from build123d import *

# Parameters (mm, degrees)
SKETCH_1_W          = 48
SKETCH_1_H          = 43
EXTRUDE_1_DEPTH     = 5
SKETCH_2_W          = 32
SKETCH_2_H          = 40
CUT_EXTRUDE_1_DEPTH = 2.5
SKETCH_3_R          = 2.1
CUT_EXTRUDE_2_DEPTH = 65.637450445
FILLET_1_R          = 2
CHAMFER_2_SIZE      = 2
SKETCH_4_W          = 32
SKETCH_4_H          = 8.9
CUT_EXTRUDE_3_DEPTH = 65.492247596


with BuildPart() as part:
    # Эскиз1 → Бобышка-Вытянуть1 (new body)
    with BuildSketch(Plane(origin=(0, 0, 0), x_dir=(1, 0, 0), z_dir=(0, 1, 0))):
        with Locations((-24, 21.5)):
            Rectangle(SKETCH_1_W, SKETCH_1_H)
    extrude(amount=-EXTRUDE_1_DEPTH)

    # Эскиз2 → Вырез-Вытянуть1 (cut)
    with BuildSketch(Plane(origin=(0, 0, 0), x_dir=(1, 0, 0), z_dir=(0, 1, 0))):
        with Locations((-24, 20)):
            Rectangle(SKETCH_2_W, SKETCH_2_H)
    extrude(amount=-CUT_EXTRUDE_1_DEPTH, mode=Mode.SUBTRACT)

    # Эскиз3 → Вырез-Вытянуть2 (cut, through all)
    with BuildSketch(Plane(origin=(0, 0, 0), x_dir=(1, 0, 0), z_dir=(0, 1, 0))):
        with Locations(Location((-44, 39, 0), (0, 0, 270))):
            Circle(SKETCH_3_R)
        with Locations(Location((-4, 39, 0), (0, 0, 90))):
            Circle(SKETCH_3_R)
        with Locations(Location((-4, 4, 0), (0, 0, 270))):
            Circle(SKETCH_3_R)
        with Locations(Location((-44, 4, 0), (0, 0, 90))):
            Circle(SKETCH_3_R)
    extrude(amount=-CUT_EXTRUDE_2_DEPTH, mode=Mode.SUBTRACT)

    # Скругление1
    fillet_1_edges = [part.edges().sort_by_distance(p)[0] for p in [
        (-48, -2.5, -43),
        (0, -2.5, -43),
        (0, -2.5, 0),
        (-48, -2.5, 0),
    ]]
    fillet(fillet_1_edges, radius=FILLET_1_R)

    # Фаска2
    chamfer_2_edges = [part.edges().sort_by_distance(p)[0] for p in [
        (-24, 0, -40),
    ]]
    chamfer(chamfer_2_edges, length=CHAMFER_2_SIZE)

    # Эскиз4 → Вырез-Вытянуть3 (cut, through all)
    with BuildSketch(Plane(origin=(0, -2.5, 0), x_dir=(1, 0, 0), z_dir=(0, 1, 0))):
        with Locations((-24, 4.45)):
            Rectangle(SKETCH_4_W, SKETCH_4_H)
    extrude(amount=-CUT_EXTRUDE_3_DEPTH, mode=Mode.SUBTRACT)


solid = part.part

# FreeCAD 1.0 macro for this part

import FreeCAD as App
import Part
import Sketcher
from FreeCAD import Vector


def edges_at(feature, points):
    """Names of the edges that pass closest to the given points."""
    edges = feature.Shape.Edges
    near = lambda p: min(range(len(edges)), key=lambda i: edges[i].distToShape(Part.Vertex(*p))[0])
    return sorted({f"Edge{near(p) + 1}" for p in points})


def add_polygon(sketch, points):
    """Adds a closed chain of lines whose ends are joined by coincident constraints."""
    first, n = sketch.GeometryCount, len(points)
    for a, b in zip(points, points[1:] + points[:1]):
        sketch.addGeometry(Part.LineSegment(App.Vector(*a, 0), App.Vector(*b, 0)), False)
    for i in range(n):
        sketch.addConstraint(Sketcher.Constraint("Coincident", first + i, 2, first + (i + 1) % n, 1))

doc = App.newDocument("Part")
params = doc.addObject("Spreadsheet::Sheet", "Params")
for row, (alias, value) in enumerate([
    ("sketch1_width", "48 mm"),
    ("sketch1_height", "43 mm"),
    ("pad1_length", "5 mm"),
    ("sketch2_width", "32 mm"),
    ("sketch2_height", "40 mm"),
    ("pocket1_length", "2.5 mm"),
    ("sketch3_diameter", "4.2 mm"),
    ("fillet_radius", "2 mm"),
    ("chamfer_size", "2 mm"),
    ("sketch4_width", "32 mm"),
    ("sketch4_height", "8.9 mm"),
], start=1):
    params.set(f"A{row}", alias)
    params.set(f"B{row}", "=" + value)
    params.setAlias(f"B{row}", alias)

body = doc.addObject("PartDesign::Body", "Body")

# Sketch on XZ plane
sketch1 = doc.addObject("Sketcher::SketchObject", "Sketch")
body.addObject(sketch1)
sketch1.AttachmentSupport = (doc.XZ_Plane, [""])
sketch1.MapMode = "FlatFace"
add_polygon(sketch1, [(-48, -43), (-48, 0), (0, 0), (0, -43)])  # lines 0-3
sketch1.addConstraint([
    Sketcher.Constraint("Vertical", 0),
    Sketcher.Constraint("Horizontal", 1),
    Sketcher.Constraint("Vertical", 2),
    Sketcher.Constraint("Horizontal", 3),
    Sketcher.Constraint("Coincident", 1, 2, -1, 1),
    Sketcher.Constraint("DistanceX", 1, 1, 1, 2, 48.0),
    Sketcher.Constraint("DistanceY", 0, 1, 0, 2, 43.0),
])
sketch1.setExpression("Constraints[9]", "Params.sketch1_width")
sketch1.setExpression("Constraints[10]", "Params.sketch1_height")
pad1 = doc.addObject("PartDesign::Pad", "Pad")
body.addObject(pad1)
pad1.Profile = sketch1
pad1.setExpression("Length", "Params.pad1_length")

# Sketch on XZ plane
sketch2 = doc.addObject("Sketcher::SketchObject", "Sketch001")
body.addObject(sketch2)
sketch2.AttachmentSupport = (doc.XZ_Plane, [""])
sketch2.MapMode = "FlatFace"
add_polygon(sketch2, [(-40, -40), (-40, 0), (-8, 0), (-8, -40)])  # lines 0-3
sketch2.addConstraint([
    Sketcher.Constraint("Vertical", 0),
    Sketcher.Constraint("Horizontal", 1),
    Sketcher.Constraint("Vertical", 2),
    Sketcher.Constraint("Horizontal", 3),
    Sketcher.Constraint("PointOnObject", 0, 2, -1),
    Sketcher.Constraint("DistanceX", 1, 1, 1, 2, 32.0),
    Sketcher.Constraint("DistanceY", 0, 1, 0, 2, 40.0),
    Sketcher.Constraint("DistanceX", 0, 2, -1, 1, 40.0),
])
sketch2.setExpression("Constraints[9]", "Params.sketch2_width")
sketch2.setExpression("Constraints[10]", "Params.sketch2_height")
pocket1 = doc.addObject("PartDesign::Pocket", "Pocket")
body.addObject(pocket1)
pocket1.Profile = sketch2
pocket1.setExpression("Length", "Params.pocket1_length")
pocket1.Reversed = True

# Sketch on XZ plane
sketch3 = doc.addObject("Sketcher::SketchObject", "Sketch002")
body.addObject(sketch3)
sketch3.AttachmentSupport = (doc.XZ_Plane, [""])
sketch3.MapMode = "FlatFace"
sketch3.addGeometry([
    Part.Circle(Vector(-44, -39, 0), Vector(0, 0, 1), 2.1),
    Part.Circle(Vector(-4, -39, 0), Vector(0, 0, 1), 2.1),
    Part.Circle(Vector(-4, -4, 0), Vector(0, 0, 1), 2.1),
    Part.Circle(Vector(-44, -4, 0), Vector(0, 0, 1), 2.1),
], False)
sketch3.addConstraint([
    Sketcher.Constraint("Equal", 0, 1),
    Sketcher.Constraint("Equal", 1, 2),
    Sketcher.Constraint("Equal", 2, 3),
    Sketcher.Constraint("Horizontal", 0, 3, 1, 3),
    Sketcher.Constraint("Horizontal", 2, 3, 3, 3),
    Sketcher.Constraint("Vertical", 1, 3, 2, 3),
    Sketcher.Constraint("Vertical", 0, 3, 3, 3),
    Sketcher.Constraint("Diameter", 0, 4.2),
    Sketcher.Constraint("DistanceX", 0, 3, -1, 1, 44.0),
    Sketcher.Constraint("DistanceY", 0, 3, -1, 1, 39.0),
    Sketcher.Constraint("DistanceX", 1, 3, -1, 1, 4.0),
    Sketcher.Constraint("DistanceY", 2, 3, -1, 1, 4.0),
])
sketch3.setExpression("Constraints[7]", "Params.sketch3_diameter")
pocket2 = doc.addObject("PartDesign::Pocket", "Pocket001")
body.addObject(pocket2)
pocket2.Profile = sketch3
pocket2.Type = "ThroughAll"
pocket2.Reversed = True
doc.recompute()

fillet = doc.addObject("PartDesign::Fillet", "Fillet")
body.addObject(fillet)
fillet.Base = (pocket2, edges_at(pocket2, [
    (-48, -2.5, -43),
    (0, -2.5, -43),
    (0, -2.5, 0),
    (-48, -2.5, 0),
]))
fillet.setExpression("Radius", "Params.fillet_radius")
doc.recompute()

chamfer = doc.addObject("PartDesign::Chamfer", "Chamfer")
body.addObject(chamfer)
chamfer.Base = (fillet, edges_at(fillet, [(-24, 0, -40)]))
chamfer.setExpression("Size", "Params.chamfer_size")

# Sketch on XZ plane
sketch4 = doc.addObject("Sketcher::SketchObject", "Sketch003")
body.addObject(sketch4)
sketch4.AttachmentSupport = (doc.XZ_Plane, [""])
sketch4.MapMode = "FlatFace"
sketch4.AttachmentOffset = App.Placement(Vector(0, 0, 2.5), App.Rotation())
add_polygon(sketch4, [(-40, -9), (-40, 0), (-8, 0), (-8, -9)])  # lines 0-3
sketch4.addConstraint([
    Sketcher.Constraint("Vertical", 0),
    Sketcher.Constraint("Horizontal", 1),
    Sketcher.Constraint("Vertical", 2),
    Sketcher.Constraint("Horizontal", 3),
    Sketcher.Constraint("PointOnObject", 0, 2, -1),
    Sketcher.Constraint("DistanceX", 1, 1, 1, 2, 32.0),
    Sketcher.Constraint("DistanceY", 0, 1, 0, 2, 8.9),
    Sketcher.Constraint("DistanceX", 0, 2, -1, 1, 40.0),
])
sketch4.setExpression("Constraints[9]", "Params.sketch4_width")
sketch4.setExpression("Constraints[10]", "Params.sketch4_height")
pocket3 = doc.addObject("PartDesign::Pocket", "Pocket002")
body.addObject(pocket3)
pocket3.Profile = sketch4
pocket3.Type = "ThroughAll"
pocket3.Reversed = True

doc.recompute()
